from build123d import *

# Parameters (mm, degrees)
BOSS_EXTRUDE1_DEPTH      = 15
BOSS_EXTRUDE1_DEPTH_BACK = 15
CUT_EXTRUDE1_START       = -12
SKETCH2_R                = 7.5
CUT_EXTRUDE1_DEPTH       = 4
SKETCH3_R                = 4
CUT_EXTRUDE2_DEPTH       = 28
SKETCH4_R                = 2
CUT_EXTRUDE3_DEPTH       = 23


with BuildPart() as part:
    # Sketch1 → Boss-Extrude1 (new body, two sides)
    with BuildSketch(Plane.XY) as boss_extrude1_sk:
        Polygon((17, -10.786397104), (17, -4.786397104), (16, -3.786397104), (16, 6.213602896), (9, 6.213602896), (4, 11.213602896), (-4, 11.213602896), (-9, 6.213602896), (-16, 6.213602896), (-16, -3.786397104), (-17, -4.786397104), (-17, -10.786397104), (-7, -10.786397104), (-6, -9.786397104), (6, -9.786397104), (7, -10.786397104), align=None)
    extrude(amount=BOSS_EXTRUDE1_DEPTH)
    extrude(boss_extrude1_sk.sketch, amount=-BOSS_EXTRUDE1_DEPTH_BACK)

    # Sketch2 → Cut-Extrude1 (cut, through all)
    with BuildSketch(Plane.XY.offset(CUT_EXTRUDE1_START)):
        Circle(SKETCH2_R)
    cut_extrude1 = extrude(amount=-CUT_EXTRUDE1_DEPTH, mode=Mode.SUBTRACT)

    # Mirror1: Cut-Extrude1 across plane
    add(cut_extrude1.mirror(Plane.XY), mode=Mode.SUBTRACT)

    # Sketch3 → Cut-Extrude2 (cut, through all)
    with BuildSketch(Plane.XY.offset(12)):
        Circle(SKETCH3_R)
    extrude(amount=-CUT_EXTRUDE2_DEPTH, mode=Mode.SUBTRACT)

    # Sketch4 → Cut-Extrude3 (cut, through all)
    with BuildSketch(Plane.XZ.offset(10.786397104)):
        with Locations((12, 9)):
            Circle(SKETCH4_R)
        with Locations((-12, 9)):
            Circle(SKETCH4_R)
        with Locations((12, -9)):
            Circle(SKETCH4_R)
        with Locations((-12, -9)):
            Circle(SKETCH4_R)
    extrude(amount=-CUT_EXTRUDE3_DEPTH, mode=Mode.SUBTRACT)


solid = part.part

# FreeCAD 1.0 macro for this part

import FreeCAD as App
import Part
import Sketcher
from FreeCAD import Vector


def add_polygon(sketch, points):
    """Adds a closed chain of lines whose ends are joined by coincident constraints."""
    first, n = sketch.GeometryCount, len(points)
    for a, b in zip(points, points[1:] + points[:1]):
        sketch.addGeometry(Part.LineSegment(App.Vector(*a, 0), App.Vector(*b, 0)), False)
    for i in range(n):
        sketch.addConstraint(Sketcher.Constraint("Coincident", first + i, 2, first + (i + 1) % n, 1))

doc = App.newDocument("Part")
params = doc.addObject("Spreadsheet::Sheet", "Params")
for row, (alias, value) in enumerate([
    ("sketch1_width", "7 mm"),
    ("sketch1_width2", "8 mm"),
    ("sketch1_width3", "10 mm"),
    ("sketch1_width4", "12 mm"),
    ("sketch1_height", "6 mm"),
    ("pad1_length", "15 mm"),
    ("pad1_length2", "15 mm"),
    ("sketch2_diameter", "15 mm"),
    ("sketch3_diameter", "8 mm"),
    ("sketch4_diameter", "4 mm"),
], start=1):
    params.set(f"A{row}", alias)
    params.set(f"B{row}", "=" + value)
    params.setAlias(f"B{row}", alias)

body = doc.addObject("PartDesign::Body", "Body")

sketch1 = body.newObject("Sketcher::SketchObject", "Sketch")
sketch1.AttachmentSupport = (doc.getObject("XY_Plane"), [""])
sketch1.MapMode = "FlatFace"
add_polygon(sketch1, [(17, -10.786397), (17, -4.786397), (16, -3.786397), (16, 6.213603), (9, 6.213603), (4, 11.213603), (-4, 11.213603), (-9, 6.213603), (-16, 6.213603), (-16, -3.786397), (-17, -4.786397), (-17, -10.786397), (-7, -10.786397), (-6, -9.786397), (6, -9.786397), (7, -10.786397)])
sketch1.addConstraint(Sketcher.Constraint("Vertical", 0))
sketch1.addConstraint(Sketcher.Constraint("Vertical", 2))
sketch1.addConstraint(Sketcher.Constraint("Horizontal", 3))
sketch1.addConstraint(Sketcher.Constraint("Horizontal", 5))
sketch1.addConstraint(Sketcher.Constraint("Horizontal", 7))
sketch1.addConstraint(Sketcher.Constraint("Vertical", 8))
sketch1.addConstraint(Sketcher.Constraint("Vertical", 10))
sketch1.addConstraint(Sketcher.Constraint("Horizontal", 11))
sketch1.addConstraint(Sketcher.Constraint("Horizontal", 13))
sketch1.addConstraint(Sketcher.Constraint("Horizontal", 15))
sketch1.addConstraint(Sketcher.Constraint("Symmetric", 3, 2, 6, 2, -2))
sketch1.addConstraint(Sketcher.Constraint("Symmetric", 1, 2, 8, 2, -2))
sketch1.addConstraint(Sketcher.Constraint("Symmetric", 0, 2, 9, 2, -2))
sketch1.addConstraint(Sketcher.Constraint("Symmetric", 11, 2, 14, 2, -2))
sketch1.addConstraint(Sketcher.Constraint("Parallel", 1, 4))
sketch1.addConstraint(Sketcher.Constraint("Perpendicular", 4, 6))
sketch1.addConstraint(Sketcher.Constraint("Parallel", 6, 9))
sketch1.addConstraint(Sketcher.Constraint("Parallel", 9, 12))
sketch1.addConstraint(Sketcher.Constraint("Perpendicular", 12, 14))
sketch1.addConstraint(Sketcher.Constraint("Equal", 15, 2))
sketch1.addConstraint(Sketcher.Constraint("Equal", 9, 12))
sketch1.addConstraint(Sketcher.Constraint("DistanceX", 3, 2, 3, 1, 7.0))
sketch1.addConstraint(Sketcher.Constraint("DistanceX", 5, 2, 5, 1, 8.0))
sketch1.addConstraint(Sketcher.Constraint("DistanceX", 11, 1, 11, 2, 10.0))
sketch1.addConstraint(Sketcher.Constraint("DistanceX", 13, 1, 13, 2, 12.0))
sketch1.addConstraint(Sketcher.Constraint("DistanceY", 0, 1, 0, 2, 6.0))
sketch1.addConstraint(Sketcher.Constraint("DistanceX", -1, 1, 0, 2, 17.0))
sketch1.addConstraint(Sketcher.Constraint("DistanceY", 0, 2, -1, 1, 4.786397))
sketch1.setExpression("Constraints[37]", "Params.sketch1_width")
sketch1.setExpression("Constraints[38]", "Params.sketch1_width2")
sketch1.setExpression("Constraints[39]", "Params.sketch1_width3")
sketch1.setExpression("Constraints[40]", "Params.sketch1_width4")
sketch1.setExpression("Constraints[41]", "Params.sketch1_height")
pad1 = body.newObject("PartDesign::Pad", "Pad")
pad1.Profile = sketch1
pad1.Type = "TwoLengths"
pad1.setExpression("Length", "Params.pad1_length")
pad1.setExpression("Length2", "Params.pad1_length2")

sketch2 = body.newObject("Sketcher::SketchObject", "Sketch001")
sketch2.AttachmentSupport = (doc.getObject("XY_Plane"), [""])
sketch2.MapMode = "FlatFace"
sketch2.AttachmentOffset = App.Placement(Vector(0, 0, -12), App.Rotation())
sketch2.addGeometry(Part.Circle(Vector(0, 0, 0), Vector(0, 0, 1), 7.5), False)
sketch2.addConstraint(Sketcher.Constraint("Coincident", 0, 3, -1, 1))
sketch2.addConstraint(Sketcher.Constraint("Diameter", 0, 15.0))
sketch2.setExpression("Constraints[1]", "Params.sketch2_diameter")
pocket1 = body.newObject("PartDesign::Pocket", "Pocket")
pocket1.Profile = sketch2
pocket1.Type = "ThroughAll"
doc.recompute()

mirrored = body.newObject("PartDesign::Mirrored", "Mirrored")
mirrored.Originals = [pocket1]
mirrored.MirrorPlane = (doc.getObject("XY_Plane"), [""])
body.Tip = mirrored

sketch3 = body.newObject("Sketcher::SketchObject", "Sketch002")
sketch3.AttachmentSupport = (doc.getObject("XY_Plane"), [""])
sketch3.MapMode = "FlatFace"
sketch3.AttachmentOffset = App.Placement(Vector(0, 0, 12), App.Rotation())
sketch3.addGeometry(Part.Circle(Vector(0, 0, 0), Vector(0, 0, 1), 4), False)
sketch3.addConstraint(Sketcher.Constraint("Coincident", 0, 3, -1, 1))
sketch3.addConstraint(Sketcher.Constraint("Diameter", 0, 8.0))
sketch3.setExpression("Constraints[1]", "Params.sketch3_diameter")
pocket2 = body.newObject("PartDesign::Pocket", "Pocket001")
pocket2.Profile = sketch3
pocket2.Type = "ThroughAll"

sketch4 = body.newObject("Sketcher::SketchObject", "Sketch003")
sketch4.AttachmentSupport = (doc.getObject("XZ_Plane"), [""])
sketch4.MapMode = "FlatFace"
sketch4.AttachmentOffset = App.Placement(Vector(0, 0, 10.786397), App.Rotation())
sketch4.addGeometry(Part.Circle(Vector(12, 9, 0), Vector(0, 0, 1), 2), False)
sketch4.addGeometry(Part.Circle(Vector(-12, 9, 0), Vector(0, 0, 1), 2), False)
sketch4.addGeometry(Part.Circle(Vector(12, -9, 0), Vector(0, 0, 1), 2), False)
sketch4.addGeometry(Part.Circle(Vector(-12, -9, 0), Vector(0, 0, 1), 2), False)
sketch4.addConstraint(Sketcher.Constraint("Equal", 0, 1))
sketch4.addConstraint(Sketcher.Constraint("Equal", 1, 2))
sketch4.addConstraint(Sketcher.Constraint("Equal", 2, 3))
sketch4.addConstraint(Sketcher.Constraint("Symmetric", 1, 3, 2, 3, -1, 1))
sketch4.addConstraint(Sketcher.Constraint("Symmetric", 0, 3, 3, 3, -1, 1))
sketch4.addConstraint(Sketcher.Constraint("Symmetric", 0, 3, 1, 3, -2))
sketch4.addConstraint(Sketcher.Constraint("Diameter", 0, 4.0))
sketch4.addConstraint(Sketcher.Constraint("DistanceX", -1, 1, 0, 3, 12.0))
sketch4.addConstraint(Sketcher.Constraint("DistanceY", -1, 1, 0, 3, 9.0))
sketch4.setExpression("Constraints[6]", "Params.sketch4_diameter")
pocket3 = body.newObject("PartDesign::Pocket", "Pocket002")
pocket3.Profile = sketch4
pocket3.Type = "ThroughAll"

doc.recompute()
